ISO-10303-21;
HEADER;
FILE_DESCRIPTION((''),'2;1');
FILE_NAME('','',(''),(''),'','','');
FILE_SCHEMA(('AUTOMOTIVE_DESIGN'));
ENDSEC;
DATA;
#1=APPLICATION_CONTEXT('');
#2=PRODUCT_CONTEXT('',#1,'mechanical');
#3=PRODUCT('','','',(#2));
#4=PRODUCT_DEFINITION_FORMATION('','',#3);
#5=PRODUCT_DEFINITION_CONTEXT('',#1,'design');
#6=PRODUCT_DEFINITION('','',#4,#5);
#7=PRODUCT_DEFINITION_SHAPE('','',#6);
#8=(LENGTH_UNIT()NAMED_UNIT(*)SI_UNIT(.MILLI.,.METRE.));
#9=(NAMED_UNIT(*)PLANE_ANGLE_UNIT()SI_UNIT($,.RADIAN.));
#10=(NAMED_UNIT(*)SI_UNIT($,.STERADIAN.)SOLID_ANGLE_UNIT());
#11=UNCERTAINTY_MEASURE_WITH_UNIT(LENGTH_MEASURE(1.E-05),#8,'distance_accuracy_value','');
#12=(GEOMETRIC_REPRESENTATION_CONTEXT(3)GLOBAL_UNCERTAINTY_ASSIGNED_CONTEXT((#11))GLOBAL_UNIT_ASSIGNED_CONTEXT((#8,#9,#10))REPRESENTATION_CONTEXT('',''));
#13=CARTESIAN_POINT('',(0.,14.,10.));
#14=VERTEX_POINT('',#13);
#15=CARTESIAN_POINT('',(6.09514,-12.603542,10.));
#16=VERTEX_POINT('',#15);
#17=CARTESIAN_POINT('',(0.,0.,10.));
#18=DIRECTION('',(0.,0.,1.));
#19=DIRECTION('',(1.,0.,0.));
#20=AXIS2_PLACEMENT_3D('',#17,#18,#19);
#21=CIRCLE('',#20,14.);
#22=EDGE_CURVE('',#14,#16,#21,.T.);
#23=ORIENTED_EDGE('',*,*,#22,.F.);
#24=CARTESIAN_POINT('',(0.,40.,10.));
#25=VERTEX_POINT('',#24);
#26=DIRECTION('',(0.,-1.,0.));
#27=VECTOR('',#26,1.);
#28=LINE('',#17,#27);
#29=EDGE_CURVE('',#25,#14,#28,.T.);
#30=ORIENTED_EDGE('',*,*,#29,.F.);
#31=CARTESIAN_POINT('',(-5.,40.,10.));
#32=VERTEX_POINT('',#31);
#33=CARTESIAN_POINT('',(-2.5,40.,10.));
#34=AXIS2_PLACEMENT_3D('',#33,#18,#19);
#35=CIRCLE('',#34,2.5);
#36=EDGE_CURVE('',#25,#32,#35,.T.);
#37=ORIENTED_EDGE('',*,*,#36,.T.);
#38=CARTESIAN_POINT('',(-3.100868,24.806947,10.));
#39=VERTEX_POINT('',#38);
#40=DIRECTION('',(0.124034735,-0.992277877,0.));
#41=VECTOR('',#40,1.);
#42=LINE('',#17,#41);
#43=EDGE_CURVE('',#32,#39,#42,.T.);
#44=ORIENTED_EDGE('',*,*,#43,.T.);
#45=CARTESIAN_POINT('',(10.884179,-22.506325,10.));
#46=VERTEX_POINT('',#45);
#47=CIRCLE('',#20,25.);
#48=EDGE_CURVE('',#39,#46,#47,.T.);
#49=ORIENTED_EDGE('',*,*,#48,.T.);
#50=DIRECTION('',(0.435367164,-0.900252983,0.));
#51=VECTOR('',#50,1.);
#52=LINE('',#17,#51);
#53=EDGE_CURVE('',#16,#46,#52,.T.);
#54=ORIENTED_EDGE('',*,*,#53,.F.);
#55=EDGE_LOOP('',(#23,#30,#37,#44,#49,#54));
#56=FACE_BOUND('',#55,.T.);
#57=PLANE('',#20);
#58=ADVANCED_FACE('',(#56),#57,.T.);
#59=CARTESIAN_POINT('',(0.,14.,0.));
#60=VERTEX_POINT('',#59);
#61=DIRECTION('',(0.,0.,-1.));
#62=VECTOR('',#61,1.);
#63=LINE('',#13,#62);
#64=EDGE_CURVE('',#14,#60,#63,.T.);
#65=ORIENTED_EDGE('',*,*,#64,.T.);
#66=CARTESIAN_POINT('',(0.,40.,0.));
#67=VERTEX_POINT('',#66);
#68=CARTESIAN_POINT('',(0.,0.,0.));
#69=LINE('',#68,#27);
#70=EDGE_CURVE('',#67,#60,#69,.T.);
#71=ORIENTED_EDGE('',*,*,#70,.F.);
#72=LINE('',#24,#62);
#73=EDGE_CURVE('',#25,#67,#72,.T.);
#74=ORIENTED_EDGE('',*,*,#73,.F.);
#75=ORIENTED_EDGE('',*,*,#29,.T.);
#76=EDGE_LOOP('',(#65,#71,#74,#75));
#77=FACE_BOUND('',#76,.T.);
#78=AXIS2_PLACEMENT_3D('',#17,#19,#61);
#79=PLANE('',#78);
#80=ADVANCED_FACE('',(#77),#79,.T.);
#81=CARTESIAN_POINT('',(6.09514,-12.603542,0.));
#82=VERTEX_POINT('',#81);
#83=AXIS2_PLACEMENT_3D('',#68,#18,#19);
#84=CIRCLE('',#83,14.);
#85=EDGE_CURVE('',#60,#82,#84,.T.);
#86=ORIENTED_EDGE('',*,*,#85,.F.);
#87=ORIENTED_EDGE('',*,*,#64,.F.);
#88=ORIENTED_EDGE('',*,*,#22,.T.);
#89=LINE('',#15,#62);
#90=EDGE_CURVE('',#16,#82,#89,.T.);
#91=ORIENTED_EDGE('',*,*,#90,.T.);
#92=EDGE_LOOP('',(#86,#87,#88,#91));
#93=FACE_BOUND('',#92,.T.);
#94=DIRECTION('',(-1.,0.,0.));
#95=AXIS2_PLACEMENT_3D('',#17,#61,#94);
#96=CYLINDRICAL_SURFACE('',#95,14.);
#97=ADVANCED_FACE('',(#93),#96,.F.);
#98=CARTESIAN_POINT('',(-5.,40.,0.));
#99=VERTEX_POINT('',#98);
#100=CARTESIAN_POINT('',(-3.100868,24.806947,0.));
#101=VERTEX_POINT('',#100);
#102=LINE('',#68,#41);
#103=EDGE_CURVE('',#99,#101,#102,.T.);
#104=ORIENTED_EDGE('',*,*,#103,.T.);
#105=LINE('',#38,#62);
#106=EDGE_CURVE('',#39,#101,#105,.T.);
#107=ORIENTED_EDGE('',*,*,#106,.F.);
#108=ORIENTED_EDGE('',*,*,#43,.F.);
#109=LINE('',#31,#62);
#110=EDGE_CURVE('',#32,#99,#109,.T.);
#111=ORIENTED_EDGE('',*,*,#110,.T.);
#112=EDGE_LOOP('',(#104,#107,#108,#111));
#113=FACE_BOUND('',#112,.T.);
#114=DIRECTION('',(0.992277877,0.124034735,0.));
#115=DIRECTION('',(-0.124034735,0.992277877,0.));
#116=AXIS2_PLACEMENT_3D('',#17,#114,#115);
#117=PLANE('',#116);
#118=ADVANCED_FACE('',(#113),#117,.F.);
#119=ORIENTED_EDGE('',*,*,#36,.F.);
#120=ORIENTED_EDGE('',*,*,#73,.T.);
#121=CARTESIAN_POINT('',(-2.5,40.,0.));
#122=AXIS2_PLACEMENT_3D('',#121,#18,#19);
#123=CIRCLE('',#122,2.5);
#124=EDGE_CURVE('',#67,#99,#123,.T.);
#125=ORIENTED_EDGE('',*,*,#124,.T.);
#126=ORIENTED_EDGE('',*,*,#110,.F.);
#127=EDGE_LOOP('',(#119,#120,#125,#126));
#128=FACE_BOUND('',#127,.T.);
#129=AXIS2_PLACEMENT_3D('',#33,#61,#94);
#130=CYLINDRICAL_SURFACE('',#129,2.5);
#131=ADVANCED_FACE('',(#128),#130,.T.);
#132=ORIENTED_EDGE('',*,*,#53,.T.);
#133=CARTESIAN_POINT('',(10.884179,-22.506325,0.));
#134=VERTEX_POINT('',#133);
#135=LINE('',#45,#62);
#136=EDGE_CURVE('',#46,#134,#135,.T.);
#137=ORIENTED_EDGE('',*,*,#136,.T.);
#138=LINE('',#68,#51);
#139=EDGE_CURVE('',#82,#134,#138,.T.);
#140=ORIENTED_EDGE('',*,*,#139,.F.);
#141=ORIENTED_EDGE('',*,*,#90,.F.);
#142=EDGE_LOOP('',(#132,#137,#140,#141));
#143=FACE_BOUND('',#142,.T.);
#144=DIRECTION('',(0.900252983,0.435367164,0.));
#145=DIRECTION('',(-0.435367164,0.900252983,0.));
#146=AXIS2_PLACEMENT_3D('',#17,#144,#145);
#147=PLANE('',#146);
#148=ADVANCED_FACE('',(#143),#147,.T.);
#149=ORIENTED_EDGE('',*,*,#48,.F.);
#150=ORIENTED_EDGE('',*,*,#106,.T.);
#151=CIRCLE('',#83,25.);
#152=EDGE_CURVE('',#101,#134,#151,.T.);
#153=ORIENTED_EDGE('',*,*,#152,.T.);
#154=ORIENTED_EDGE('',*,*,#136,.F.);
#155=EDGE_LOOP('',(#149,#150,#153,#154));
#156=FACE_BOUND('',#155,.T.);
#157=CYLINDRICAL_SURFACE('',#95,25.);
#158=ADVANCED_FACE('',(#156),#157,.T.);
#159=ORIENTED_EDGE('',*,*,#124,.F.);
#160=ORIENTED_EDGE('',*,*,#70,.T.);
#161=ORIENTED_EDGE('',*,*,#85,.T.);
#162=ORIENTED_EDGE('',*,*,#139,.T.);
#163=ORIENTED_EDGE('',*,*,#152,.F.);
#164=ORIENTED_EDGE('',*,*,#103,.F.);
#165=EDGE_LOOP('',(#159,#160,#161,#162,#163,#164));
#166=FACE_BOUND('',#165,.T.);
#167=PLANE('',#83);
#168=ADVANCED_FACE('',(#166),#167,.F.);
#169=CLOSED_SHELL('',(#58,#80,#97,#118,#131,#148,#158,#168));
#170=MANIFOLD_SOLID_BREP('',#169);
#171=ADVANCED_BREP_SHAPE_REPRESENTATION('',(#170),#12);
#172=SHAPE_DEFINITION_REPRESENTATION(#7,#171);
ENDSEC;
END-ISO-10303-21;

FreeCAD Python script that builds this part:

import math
import FreeCAD as App
import Part
import Sketcher

doc = App.newDocument("Part")
body = doc.addObject("PartDesign::Body", "Body")

# Sketch on XY plane
sketch1 = body.newObject("Sketcher::SketchObject", "Sketch")
sketch1.AttachmentSupport = (doc.getObject("XY_Plane"), [""])
sketch1.MapMode = "FlatFace"
sketch1.addGeometry(Part.LineSegment(App.Vector(0, 14, 0), App.Vector(0, 40, 0)), False)
sketch1.addGeometry(Part.ArcOfCircle(Part.Circle(App.Vector(-2.5, 40, 0), App.Vector(0, 0, 1), 2.5), math.radians(0), math.radians(180)), False)
sketch1.addGeometry(Part.LineSegment(App.Vector(-5, 40, 0), App.Vector(-4.9, 39.4, 0)), False)
sketch1.addGeometry(Part.LineSegment(App.Vector(-4.9, 39.4, 0), App.Vector(-3.1, 24.8, 0)), False)
sketch1.addGeometry(Part.ArcOfCircle(Part.Circle(App.Vector(0, 0, 0), App.Vector(0, 0, 1), 25), math.radians(97), math.radians(296)), False)
sketch1.addGeometry(Part.LineSegment(App.Vector(10.9, -22.5, 0), App.Vector(6.1, -12.6, 0)), False)
sketch1.addGeometry(Part.ArcOfCircle(Part.Circle(App.Vector(0, 0, 0), App.Vector(0, 0, 1), 14), math.radians(90), math.radians(296)), False)
sketch1.addConstraint(Sketcher.Constraint("Tangent", 0, 2, 1, 1))
sketch1.addConstraint(Sketcher.Constraint("Coincident", 1, 2, 2, 1))
sketch1.addConstraint(Sketcher.Constraint("Coincident", 2, 2, 3, 1))
sketch1.addConstraint(Sketcher.Constraint("Coincident", 3, 2, 4, 1))
sketch1.addConstraint(Sketcher.Constraint("Coincident", 4, 2, 5, 1))
sketch1.addConstraint(Sketcher.Constraint("Coincident", 5, 2, 6, 2))
sketch1.addConstraint(Sketcher.Constraint("Coincident", 6, 1, 0, 1))
sketch1.addConstraint(Sketcher.Constraint("Vertical", 0))
sketch1.addConstraint(Sketcher.Constraint("Coincident", 4, 3, -1, 1))
sketch1.addConstraint(Sketcher.Constraint("Coincident", 6, 3, -1, 1))
sketch1.addConstraint(Sketcher.Constraint("PointOnObject", 0, 2, -2))
sketch1.addConstraint(Sketcher.Constraint("Parallel", 2, 3))
sketch1.addConstraint(Sketcher.Constraint("Horizontal", 0, 2, 1, 2))
sketch1.addConstraint(Sketcher.Constraint("Radius", 4, 25.0))
sketch1.addConstraint(Sketcher.Constraint("Radius", 6, 14.0))
sketch1.addConstraint(Sketcher.Constraint("Radius", 1, 2.5))
sketch1.addConstraint(Sketcher.Constraint("DistanceY", 0, 1, 0, 2, 26.0))
sketch1.addConstraint(Sketcher.Constraint("DistanceX", 3, 2, -1, 1, 3.100868))
sketch1.addConstraint(Sketcher.Constraint("DistanceX", -1, 1, 4, 2, 10.884179))
sketch1.addConstraint(Sketcher.Constraint("DistanceX", -1, 1, 5, 2, 6.09514))
sketch1.addConstraint(Sketcher.Constraint("DistanceX", 2, 2, 3, 2, 1.822209))
pad1 = body.newObject("PartDesign::Pad", "Pad")
pad1.Profile = sketch1
pad1.Length = 10

doc.recompute()
